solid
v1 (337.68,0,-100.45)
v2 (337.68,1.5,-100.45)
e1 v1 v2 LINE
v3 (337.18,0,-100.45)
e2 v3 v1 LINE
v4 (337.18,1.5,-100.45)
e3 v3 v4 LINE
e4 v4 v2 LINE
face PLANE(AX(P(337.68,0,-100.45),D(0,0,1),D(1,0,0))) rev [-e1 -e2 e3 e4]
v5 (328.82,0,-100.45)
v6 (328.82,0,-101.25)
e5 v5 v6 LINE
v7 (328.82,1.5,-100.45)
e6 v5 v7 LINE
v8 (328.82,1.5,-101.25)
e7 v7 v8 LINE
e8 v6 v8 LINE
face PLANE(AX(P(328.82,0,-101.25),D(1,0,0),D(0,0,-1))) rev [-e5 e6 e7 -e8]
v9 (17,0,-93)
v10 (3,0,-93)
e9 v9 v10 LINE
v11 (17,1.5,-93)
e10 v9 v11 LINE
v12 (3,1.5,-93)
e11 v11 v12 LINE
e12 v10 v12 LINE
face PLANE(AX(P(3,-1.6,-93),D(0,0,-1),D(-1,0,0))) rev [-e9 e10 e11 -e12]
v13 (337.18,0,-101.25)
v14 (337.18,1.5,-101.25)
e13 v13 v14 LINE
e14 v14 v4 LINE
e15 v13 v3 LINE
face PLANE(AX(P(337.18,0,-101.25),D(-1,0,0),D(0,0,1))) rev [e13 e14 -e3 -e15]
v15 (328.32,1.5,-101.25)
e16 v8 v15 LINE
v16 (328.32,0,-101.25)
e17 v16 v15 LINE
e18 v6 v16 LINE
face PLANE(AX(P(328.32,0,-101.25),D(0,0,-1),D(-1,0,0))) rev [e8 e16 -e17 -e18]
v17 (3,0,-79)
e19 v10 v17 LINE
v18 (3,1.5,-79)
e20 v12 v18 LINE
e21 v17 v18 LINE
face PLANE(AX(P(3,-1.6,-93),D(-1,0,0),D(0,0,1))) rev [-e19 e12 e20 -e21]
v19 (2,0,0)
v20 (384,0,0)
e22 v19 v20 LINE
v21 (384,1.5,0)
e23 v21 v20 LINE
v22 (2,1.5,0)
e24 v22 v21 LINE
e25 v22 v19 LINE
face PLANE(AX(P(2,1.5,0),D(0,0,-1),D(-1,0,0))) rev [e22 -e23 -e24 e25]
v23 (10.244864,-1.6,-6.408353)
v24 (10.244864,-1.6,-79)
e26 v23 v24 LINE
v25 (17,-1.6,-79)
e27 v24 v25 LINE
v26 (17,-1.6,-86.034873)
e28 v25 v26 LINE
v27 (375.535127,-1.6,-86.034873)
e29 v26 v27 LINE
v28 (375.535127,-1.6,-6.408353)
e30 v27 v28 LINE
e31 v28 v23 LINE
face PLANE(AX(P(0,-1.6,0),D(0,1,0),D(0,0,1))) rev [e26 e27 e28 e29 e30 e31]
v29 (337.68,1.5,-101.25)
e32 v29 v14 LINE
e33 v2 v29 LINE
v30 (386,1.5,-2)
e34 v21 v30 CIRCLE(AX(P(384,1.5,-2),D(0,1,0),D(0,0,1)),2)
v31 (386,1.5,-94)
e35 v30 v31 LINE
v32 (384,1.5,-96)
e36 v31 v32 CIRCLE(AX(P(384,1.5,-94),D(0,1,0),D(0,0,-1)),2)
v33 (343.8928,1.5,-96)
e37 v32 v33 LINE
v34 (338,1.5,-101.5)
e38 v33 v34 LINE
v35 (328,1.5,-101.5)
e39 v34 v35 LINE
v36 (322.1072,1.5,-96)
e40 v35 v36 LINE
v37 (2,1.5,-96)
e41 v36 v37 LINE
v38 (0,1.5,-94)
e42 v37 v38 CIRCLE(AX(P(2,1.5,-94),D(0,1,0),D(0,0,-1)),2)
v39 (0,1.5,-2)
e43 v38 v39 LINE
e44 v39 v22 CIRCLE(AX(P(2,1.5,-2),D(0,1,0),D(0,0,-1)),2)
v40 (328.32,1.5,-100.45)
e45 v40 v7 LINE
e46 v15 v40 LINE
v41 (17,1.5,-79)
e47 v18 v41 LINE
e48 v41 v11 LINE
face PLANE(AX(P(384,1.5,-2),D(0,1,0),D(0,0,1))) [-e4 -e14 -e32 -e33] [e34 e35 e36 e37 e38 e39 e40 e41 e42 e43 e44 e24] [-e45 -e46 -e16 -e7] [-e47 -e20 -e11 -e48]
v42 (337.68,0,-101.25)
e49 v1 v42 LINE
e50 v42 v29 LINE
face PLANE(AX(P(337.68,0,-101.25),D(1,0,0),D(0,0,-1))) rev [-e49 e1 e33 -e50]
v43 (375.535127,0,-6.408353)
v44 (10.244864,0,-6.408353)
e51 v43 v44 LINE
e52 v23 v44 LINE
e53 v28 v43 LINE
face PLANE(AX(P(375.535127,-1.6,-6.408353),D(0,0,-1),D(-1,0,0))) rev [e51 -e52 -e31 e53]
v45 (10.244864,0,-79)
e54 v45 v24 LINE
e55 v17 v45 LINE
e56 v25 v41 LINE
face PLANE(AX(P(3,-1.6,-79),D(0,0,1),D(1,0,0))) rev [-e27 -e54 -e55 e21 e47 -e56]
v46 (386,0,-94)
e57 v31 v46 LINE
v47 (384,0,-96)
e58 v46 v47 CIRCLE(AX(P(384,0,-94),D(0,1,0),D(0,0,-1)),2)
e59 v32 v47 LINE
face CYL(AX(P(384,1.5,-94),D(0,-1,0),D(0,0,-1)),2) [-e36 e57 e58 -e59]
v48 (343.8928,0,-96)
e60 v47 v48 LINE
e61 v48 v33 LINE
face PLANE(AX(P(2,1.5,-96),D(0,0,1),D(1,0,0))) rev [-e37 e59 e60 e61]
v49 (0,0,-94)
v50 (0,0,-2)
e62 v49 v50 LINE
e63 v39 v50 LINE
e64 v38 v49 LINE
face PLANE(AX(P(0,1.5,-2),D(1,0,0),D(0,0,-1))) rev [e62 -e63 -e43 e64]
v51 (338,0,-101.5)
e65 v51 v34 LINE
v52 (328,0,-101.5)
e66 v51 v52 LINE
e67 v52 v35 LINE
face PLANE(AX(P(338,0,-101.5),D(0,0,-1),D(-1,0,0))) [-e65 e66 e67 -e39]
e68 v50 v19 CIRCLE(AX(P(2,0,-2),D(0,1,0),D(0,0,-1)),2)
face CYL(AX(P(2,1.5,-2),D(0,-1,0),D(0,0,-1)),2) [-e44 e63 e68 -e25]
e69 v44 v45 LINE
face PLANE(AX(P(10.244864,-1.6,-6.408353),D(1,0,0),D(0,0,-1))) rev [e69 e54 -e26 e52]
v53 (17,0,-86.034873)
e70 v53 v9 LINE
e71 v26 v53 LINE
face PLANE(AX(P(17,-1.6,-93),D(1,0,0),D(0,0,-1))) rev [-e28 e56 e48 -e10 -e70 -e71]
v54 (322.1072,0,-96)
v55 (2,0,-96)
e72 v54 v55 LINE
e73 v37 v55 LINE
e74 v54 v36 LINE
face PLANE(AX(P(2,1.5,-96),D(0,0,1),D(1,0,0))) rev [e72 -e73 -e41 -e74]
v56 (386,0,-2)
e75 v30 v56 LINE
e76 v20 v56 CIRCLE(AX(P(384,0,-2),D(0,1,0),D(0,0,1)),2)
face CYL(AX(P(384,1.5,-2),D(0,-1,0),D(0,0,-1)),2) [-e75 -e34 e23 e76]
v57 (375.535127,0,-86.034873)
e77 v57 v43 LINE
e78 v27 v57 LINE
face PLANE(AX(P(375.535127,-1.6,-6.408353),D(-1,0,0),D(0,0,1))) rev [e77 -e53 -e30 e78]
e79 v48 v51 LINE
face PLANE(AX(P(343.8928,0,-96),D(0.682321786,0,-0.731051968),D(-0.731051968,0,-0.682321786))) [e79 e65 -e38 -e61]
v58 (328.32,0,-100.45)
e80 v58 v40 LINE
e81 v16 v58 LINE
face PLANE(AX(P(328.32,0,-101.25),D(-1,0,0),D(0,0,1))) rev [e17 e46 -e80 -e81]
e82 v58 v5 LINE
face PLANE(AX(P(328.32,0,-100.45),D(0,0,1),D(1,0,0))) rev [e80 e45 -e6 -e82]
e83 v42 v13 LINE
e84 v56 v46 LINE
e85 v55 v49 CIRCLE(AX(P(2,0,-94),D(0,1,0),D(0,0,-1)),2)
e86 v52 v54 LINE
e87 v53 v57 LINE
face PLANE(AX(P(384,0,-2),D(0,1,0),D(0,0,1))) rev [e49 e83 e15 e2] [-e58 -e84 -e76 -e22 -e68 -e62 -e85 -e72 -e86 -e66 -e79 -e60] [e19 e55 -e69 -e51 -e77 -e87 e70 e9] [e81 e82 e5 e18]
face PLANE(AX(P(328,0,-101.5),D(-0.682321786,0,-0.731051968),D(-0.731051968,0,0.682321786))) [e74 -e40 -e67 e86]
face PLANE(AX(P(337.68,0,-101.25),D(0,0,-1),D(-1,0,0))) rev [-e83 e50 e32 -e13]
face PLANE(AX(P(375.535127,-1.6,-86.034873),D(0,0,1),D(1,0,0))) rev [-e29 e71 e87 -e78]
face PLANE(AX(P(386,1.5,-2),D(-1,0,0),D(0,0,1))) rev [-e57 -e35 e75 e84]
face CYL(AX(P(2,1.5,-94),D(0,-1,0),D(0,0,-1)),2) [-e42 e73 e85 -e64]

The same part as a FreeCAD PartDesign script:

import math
import FreeCAD as App
import Part
import Sketcher
from FreeCAD import Vector

doc = App.newDocument("Part")
body = doc.addObject("PartDesign::Body", "Body")

sketch1 = body.newObject("Sketcher::SketchObject", "Sketch")
sketch1.AttachmentSupport = (doc.getObject("XZ_Plane"), [""])
sketch1.MapMode = "FlatFace"
sketch1.addGeometry(Part.LineSegment(Vector(2, 0, 0), Vector(384, 0, 0)), False)
sketch1.addGeometry(Part.ArcOfCircle(Part.Circle(Vector(384, -2, 0), Vector(0, 0, 1), 2), math.radians(0), math.radians(90)), False)
sketch1.addGeometry(Part.LineSegment(Vector(386, -2, 0), Vector(386, -94, 0)), False)
sketch1.addGeometry(Part.ArcOfCircle(Part.Circle(Vector(384, -94, 0), Vector(0, 0, 1), 2), math.radians(-90), math.radians(0)), False)
sketch1.addGeometry(Part.LineSegment(Vector(384, -96, 0), Vector(2, -96, 0)), False)
sketch1.addGeometry(Part.ArcOfCircle(Part.Circle(Vector(2, -94, 0), Vector(0, 0, 1), 2), math.radians(-180), math.radians(-90)), False)
sketch1.addGeometry(Part.LineSegment(Vector(0, -94, 0), Vector(0, -2, 0)), False)
sketch1.addGeometry(Part.ArcOfCircle(Part.Circle(Vector(2, -2, 0), Vector(0, 0, 1), 2), math.radians(90), math.radians(180)), False)
sketch1.addConstraint(Sketcher.Constraint("Tangent", 0, 2, 1, 2))
sketch1.addConstraint(Sketcher.Constraint("Tangent", 1, 1, 2, 1))
sketch1.addConstraint(Sketcher.Constraint("Tangent", 2, 2, 3, 2))
sketch1.addConstraint(Sketcher.Constraint("Tangent", 3, 1, 4, 1))
sketch1.addConstraint(Sketcher.Constraint("Tangent", 4, 2, 5, 2))
sketch1.addConstraint(Sketcher.Constraint("Tangent", 5, 1, 6, 1))
sketch1.addConstraint(Sketcher.Constraint("Tangent", 6, 2, 7, 2))
sketch1.addConstraint(Sketcher.Constraint("Tangent", 7, 1, 0, 1))
sketch1.addConstraint(Sketcher.Constraint("Horizontal", 0))
sketch1.addConstraint(Sketcher.Constraint("Vertical", 2))
sketch1.addConstraint(Sketcher.Constraint("Horizontal", 4))
sketch1.addConstraint(Sketcher.Constraint("Vertical", 6))
sketch1.addConstraint(Sketcher.Constraint("Equal", 1, 3))
sketch1.addConstraint(Sketcher.Constraint("Equal", 3, 5))
sketch1.addConstraint(Sketcher.Constraint("Equal", 5, 7))
sketch1.addConstraint(Sketcher.Constraint("PointOnObject", 0, 2, -1))
sketch1.addConstraint(Sketcher.Constraint("PointOnObject", 5, 1, -2))
sketch1.addConstraint(Sketcher.Constraint("Radius", 1, 2.0))
sketch1.addConstraint(Sketcher.Constraint("DistanceX", 0, 1, 0, 2, 382.0))
sketch1.addConstraint(Sketcher.Constraint("DistanceY", 2, 2, 2, 1, 92.0))
pad1 = body.newObject("PartDesign::Pad", "Pad")
pad1.Profile = sketch1
pad1.Length = 1.5
pad1.Reversed = True

sketch2 = body.newObject("Sketcher::SketchObject", "Sketch001")
sketch2.AttachmentSupport = (doc.getObject("XZ_Plane"), [""])
sketch2.MapMode = "FlatFace"
sketch2.AttachmentOffset = App.Placement(Vector(0, 0, -1.5), App.Rotation())
sketch2.addGeometry(Part.LineSegment(Vector(343.8928, -96, 0), Vector(338, -101.5, 0)), False)
sketch2.addGeometry(Part.LineSegment(Vector(338, -101.5, 0), Vector(328, -101.5, 0)), False)
sketch2.addGeometry(Part.LineSegment(Vector(328, -101.5, 0), Vector(322.1072, -96, 0)), False)
sketch2.addGeometry(Part.LineSegment(Vector(322.1072, -96, 0), Vector(343.8928, -96, 0)), False)
sketch2.addConstraint(Sketcher.Constraint("Coincident", 0, 2, 1, 1))
sketch2.addConstraint(Sketcher.Constraint("Coincident", 1, 2, 2, 1))
sketch2.addConstraint(Sketcher.Constraint("Coincident", 2, 2, 3, 1))
sketch2.addConstraint(Sketcher.Constraint("Coincident", 3, 2, 0, 1))
sketch2.addConstraint(Sketcher.Constraint("Horizontal", 1))
sketch2.addConstraint(Sketcher.Constraint("Horizontal", 3))
sketch2.addConstraint(Sketcher.Constraint("Equal", 0, 2))
sketch2.addConstraint(Sketcher.Constraint("DistanceX", 1, 2, 1, 1, 10.0))
sketch2.addConstraint(Sketcher.Constraint("DistanceX", -1, 1, 0, 2, 338.0))
sketch2.addConstraint(Sketcher.Constraint("DistanceY", 2, 2, -1, 1, 96.0))
sketch2.addConstraint(Sketcher.Constraint("DistanceY", 0, 2, -1, 1, 101.5))
sketch2.addConstraint(Sketcher.Constraint("DistanceX", 3, 1, 3, 2, 21.7856))
pad2 = body.newObject("PartDesign::Pad", "Pad001")
pad2.Profile = sketch2
pad2.Length = 1.5

sketch3 = body.newObject("Sketcher::SketchObject", "Sketch002")
sketch3.AttachmentSupport = (doc.getObject("XZ_Plane"), [""])
sketch3.MapMode = "FlatFace"
sketch3.AttachmentOffset = App.Placement(Vector(0, 0, -1.5), App.Rotation())
sketch3.addGeometry(Part.LineSegment(Vector(328.32, -101.25, 0), Vector(328.32, -100.45, 0)), False)
sketch3.addGeometry(Part.LineSegment(Vector(328.32, -100.45, 0), Vector(328.82, -100.45, 0)), False)
sketch3.addGeometry(Part.LineSegment(Vector(328.82, -100.45, 0), Vector(328.82, -101.25, 0)), False)
sketch3.addGeometry(Part.LineSegment(Vector(328.82, -101.25, 0), Vector(328.32, -101.25, 0)), False)
sketch3.addGeometry(Part.LineSegment(Vector(337.18, -101.25, 0), Vector(337.18, -100.45, 0)), False)
sketch3.addGeometry(Part.LineSegment(Vector(337.18, -100.45, 0), Vector(337.68, -100.45, 0)), False)
sketch3.addGeometry(Part.LineSegment(Vector(337.68, -100.45, 0), Vector(337.68, -101.25, 0)), False)
sketch3.addGeometry(Part.LineSegment(Vector(337.68, -101.25, 0), Vector(337.18, -101.25, 0)), False)
sketch3.addConstraint(Sketcher.Constraint("Coincident", 0, 2, 1, 1))
sketch3.addConstraint(Sketcher.Constraint("Coincident", 1, 2, 2, 1))
sketch3.addConstraint(Sketcher.Constraint("Coincident", 2, 2, 3, 1))
sketch3.addConstraint(Sketcher.Constraint("Coincident", 3, 2, 0, 1))
sketch3.addConstraint(Sketcher.Constraint("Coincident", 4, 2, 5, 1))
sketch3.addConstraint(Sketcher.Constraint("Coincident", 5, 2, 6, 1))
sketch3.addConstraint(Sketcher.Constraint("Coincident", 6, 2, 7, 1))
sketch3.addConstraint(Sketcher.Constraint("Coincident", 7, 2, 4, 1))
sketch3.addConstraint(Sketcher.Constraint("Vertical", 0))
sketch3.addConstraint(Sketcher.Constraint("Horizontal", 1))
sketch3.addConstraint(Sketcher.Constraint("Vertical", 2))
sketch3.addConstraint(Sketcher.Constraint("Horizontal", 3))
sketch3.addConstraint(Sketcher.Constraint("Vertical", 4))
sketch3.addConstraint(Sketcher.Constraint("Horizontal", 5))
sketch3.addConstraint(Sketcher.Constraint("Vertical", 6))
sketch3.addConstraint(Sketcher.Constraint("Horizontal", 7))
sketch3.addConstraint(Sketcher.Constraint("Horizontal", 1, 2, 4, 2))
sketch3.addConstraint(Sketcher.Constraint("Horizontal", 3, 2, 6, 2))
sketch3.addConstraint(Sketcher.Constraint("Equal", 3, 5))
sketch3.addConstraint(Sketcher.Constraint("DistanceX", 1, 1, 1, 2, 0.5))
sketch3.addConstraint(Sketcher.Constraint("DistanceY", 0, 1, 0, 2, 0.8))
sketch3.addConstraint(Sketcher.Constraint("DistanceX", -1, 1, 0, 2, 328.32))
sketch3.addConstraint(Sketcher.Constraint("DistanceY", 0, 2, -1, 1, 100.45))
sketch3.addConstraint(Sketcher.Constraint("DistanceX", -1, 1, 4, 2, 337.18))
pocket1 = body.newObject("PartDesign::Pocket", "Pocket")
pocket1.Profile = sketch3
pocket1.Type = "ThroughAll"
pocket1.Reversed = True

sketch4 = body.newObject("Sketcher::SketchObject", "Sketch003")
sketch4.AttachmentSupport = (doc.getObject("XZ_Plane"), [""])
sketch4.MapMode = "FlatFace"
sketch4.addGeometry(Part.LineSegment(Vector(10.244864, -6.408353, 0), Vector(10.244864, -86.034873, 0)), False)
sketch4.addGeometry(Part.LineSegment(Vector(10.244864, -86.034873, 0), Vector(375.535127, -86.034873, 0)), False)
sketch4.addGeometry(Part.LineSegment(Vector(375.535127, -86.034873, 0), Vector(375.535127, -6.408353, 0)), False)
sketch4.addGeometry(Part.LineSegment(Vector(375.535127, -6.408353, 0), Vector(10.244864, -6.408353, 0)), False)
sketch4.addConstraint(Sketcher.Constraint("Coincident", 0, 2, 1, 1))
sketch4.addConstraint(Sketcher.Constraint("Coincident", 1, 2, 2, 1))
sketch4.addConstraint(Sketcher.Constraint("Coincident", 2, 2, 3, 1))
sketch4.addConstraint(Sketcher.Constraint("Coincident", 3, 2, 0, 1))
sketch4.addConstraint(Sketcher.Constraint("Vertical", 0))
sketch4.addConstraint(Sketcher.Constraint("Horizontal", 1))
sketch4.addConstraint(Sketcher.Constraint("Vertical", 2))
sketch4.addConstraint(Sketcher.Constraint("Horizontal", 3))
sketch4.addConstraint(Sketcher.Constraint("DistanceY", 0, 2, 0, 1, 79.62652))
sketch4.addConstraint(Sketcher.Constraint("DistanceX", 1, 1, 1, 2, 365.290263))
sketch4.addConstraint(Sketcher.Constraint("DistanceX", -1, 1, 0, 2, 10.244864))
sketch4.addConstraint(Sketcher.Constraint("DistanceY", 0, 2, -1, 1, 86.034873))
pad3 = body.newObject("PartDesign::Pad", "Pad002")
pad3.Profile = sketch4
pad3.Length = 1.6

sketch5 = body.newObject("Sketcher::SketchObject", "Sketch004")
sketch5.AttachmentSupport = (doc.getObject("XZ_Plane"), [""])
sketch5.MapMode = "FlatFace"
sketch5.AttachmentOffset = App.Placement(Vector(0, 0, -1.5), App.Rotation())
sketch5.addGeometry(Part.LineSegment(Vector(3, -93, 0), Vector(3, -79, 0)), False)
sketch5.addGeometry(Part.LineSegment(Vector(3, -79, 0), Vector(17, -79, 0)), False)
sketch5.addGeometry(Part.LineSegment(Vector(17, -79, 0), Vector(17, -93, 0)), False)
sketch5.addGeometry(Part.LineSegment(Vector(17, -93, 0), Vector(3, -93, 0)), False)
sketch5.addConstraint(Sketcher.Constraint("Coincident", 0, 2, 1, 1))
sketch5.addConstraint(Sketcher.Constraint("Coincident", 1, 2, 2, 1))
sketch5.addConstraint(Sketcher.Constraint("Coincident", 2, 2, 3, 1))
sketch5.addConstraint(Sketcher.Constraint("Coincident", 3, 2, 0, 1))
sketch5.addConstraint(Sketcher.Constraint("Vertical", 0))
sketch5.addConstraint(Sketcher.Constraint("Horizontal", 1))
sketch5.addConstraint(Sketcher.Constraint("Vertical", 2))
sketch5.addConstraint(Sketcher.Constraint("Horizontal", 3))
sketch5.addConstraint(Sketcher.Constraint("Equal", 3, 0))
sketch5.addConstraint(Sketcher.Constraint("DistanceX", 1, 1, 1, 2, 14.0))
sketch5.addConstraint(Sketcher.Constraint("DistanceX", -1, 1, 0, 2, 3.0))
sketch5.addConstraint(Sketcher.Constraint("DistanceY", 0, 2, -1, 1, 79.0))
pocket2 = body.newObject("PartDesign::Pocket", "Pocket001")
pocket2.Profile = sketch5
pocket2.Type = "ThroughAll"
pocket2.Reversed = True

doc.recompute()
